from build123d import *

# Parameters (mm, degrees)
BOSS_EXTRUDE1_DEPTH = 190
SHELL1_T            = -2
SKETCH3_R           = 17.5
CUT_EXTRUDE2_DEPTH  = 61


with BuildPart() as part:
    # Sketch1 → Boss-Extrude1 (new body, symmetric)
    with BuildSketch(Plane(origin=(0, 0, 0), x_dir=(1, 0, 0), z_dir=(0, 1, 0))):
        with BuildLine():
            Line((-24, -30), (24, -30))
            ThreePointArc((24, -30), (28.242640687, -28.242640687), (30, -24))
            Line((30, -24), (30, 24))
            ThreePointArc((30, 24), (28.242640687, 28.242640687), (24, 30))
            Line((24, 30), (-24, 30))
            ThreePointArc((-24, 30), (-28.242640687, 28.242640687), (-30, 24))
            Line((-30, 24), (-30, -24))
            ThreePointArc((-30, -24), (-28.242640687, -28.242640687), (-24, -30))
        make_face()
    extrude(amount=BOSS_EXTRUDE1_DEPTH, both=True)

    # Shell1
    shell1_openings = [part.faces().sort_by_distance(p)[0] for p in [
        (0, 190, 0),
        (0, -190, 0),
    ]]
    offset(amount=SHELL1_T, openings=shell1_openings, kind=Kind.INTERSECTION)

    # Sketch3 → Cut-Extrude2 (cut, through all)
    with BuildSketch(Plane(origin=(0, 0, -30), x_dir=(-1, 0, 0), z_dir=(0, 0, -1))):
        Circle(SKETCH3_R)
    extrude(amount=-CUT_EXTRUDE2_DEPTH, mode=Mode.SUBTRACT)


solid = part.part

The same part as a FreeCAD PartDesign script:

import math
import FreeCAD as App
import Part
import Sketcher
from FreeCAD import Vector
Q = App.Units.Quantity


def faces_at(feature, points):
    """Names of the faces that lie closest to the given points."""
    faces = feature.Shape.Faces
    near = lambda p: min(range(len(faces)), key=lambda i: faces[i].distToShape(Part.Vertex(*p))[0])
    return sorted({f"Face{near(p) + 1}" for p in points})

doc = App.newDocument("Part")
body = doc.addObject("PartDesign::Body", "Body")

# Sketch on XZ plane
sketch1 = doc.addObject("Sketcher::SketchObject", "Sketch")
body.addObject(sketch1)
sketch1.AttachmentSupport = (doc.XZ_Plane, [""])
sketch1.MapMode = "FlatFace"
sketch1.addGeometry(Part.LineSegment(Vector(-24, 30, 0), Vector(24, 30, 0)), False)
sketch1.addGeometry(Part.ArcOfCircle(Part.Circle(Vector(24, 24, 0), Vector(0, 0, 1), 6), math.radians(0), math.radians(90)), False)
sketch1.addGeometry(Part.LineSegment(Vector(30, 24, 0), Vector(30, -24, 0)), False)
sketch1.addGeometry(Part.ArcOfCircle(Part.Circle(Vector(24, -24, 0), Vector(0, 0, 1), 6), math.radians(-90), math.radians(0)), False)
sketch1.addGeometry(Part.LineSegment(Vector(24, -30, 0), Vector(-24, -30, 0)), False)
sketch1.addGeometry(Part.ArcOfCircle(Part.Circle(Vector(-24, -24, 0), Vector(0, 0, 1), 6), math.radians(180), math.radians(270)), False)
sketch1.addGeometry(Part.LineSegment(Vector(-30, -24, 0), Vector(-30, 24, 0)), False)
sketch1.addGeometry(Part.ArcOfCircle(Part.Circle(Vector(-24, 24, 0), Vector(0, 0, 1), 6), math.radians(90), math.radians(180)), False)
sketch1.addConstraint(Sketcher.Constraint("Tangent", 0, 2, 1, 2))
sketch1.addConstraint(Sketcher.Constraint("Tangent", 1, 1, 2, 1))
sketch1.addConstraint(Sketcher.Constraint("Tangent", 2, 2, 3, 2))
sketch1.addConstraint(Sketcher.Constraint("Tangent", 3, 1, 4, 1))
sketch1.addConstraint(Sketcher.Constraint("Tangent", 4, 2, 5, 2))
sketch1.addConstraint(Sketcher.Constraint("Tangent", 5, 1, 6, 1))
sketch1.addConstraint(Sketcher.Constraint("Tangent", 6, 2, 7, 2))
sketch1.addConstraint(Sketcher.Constraint("Tangent", 7, 1, 0, 1))
sketch1.addConstraint(Sketcher.Constraint("Horizontal", 0))
sketch1.addConstraint(Sketcher.Constraint("Vertical", 2))
sketch1.addConstraint(Sketcher.Constraint("Horizontal", 4))
sketch1.addConstraint(Sketcher.Constraint("Vertical", 6))
sketch1.addConstraint(Sketcher.Constraint("Equal", 1, 3))
sketch1.addConstraint(Sketcher.Constraint("Equal", 3, 5))
sketch1.addConstraint(Sketcher.Constraint("Equal", 5, 7))
sketch1.addConstraint(Sketcher.Constraint("Symmetric", 1, 3, 5, 3, -1, 1))
sketch1.addConstraint(Sketcher.Constraint("Equal", 4, 2))
sketch1.addConstraint(Sketcher.Constraint("Radius", 1, Q("6 mm")))
sketch1.addConstraint(Sketcher.Constraint("DistanceX", 0, 1, 0, 2, Q("48 mm")))
pad1 = doc.addObject("PartDesign::Pad", "Pad")
body.addObject(pad1)
pad1.Profile = sketch1
pad1.Length = 380
pad1.Midplane = True
doc.recompute()

thickness = doc.addObject("PartDesign::Thickness", "Thickness")
body.addObject(thickness)
thickness.Base = (pad1, faces_at(pad1, [(0, 190, 0), (0, -190, 0)]))
thickness.Value = 2
thickness.Reversed = True
thickness.Join = "Intersection"

# Sketch on XY plane
sketch2 = doc.addObject("Sketcher::SketchObject", "Sketch001")
body.addObject(sketch2)
sketch2.AttachmentSupport = (doc.XY_Plane, [""])
sketch2.MapMode = "FlatFace"
sketch2.AttachmentOffset = App.Placement(Vector(0, 0, -30), App.Rotation())
sketch2.addGeometry(Part.Circle(Vector(0, 0, 0), Vector(0, 0, 1), 17.5), False)
sketch2.addConstraint(Sketcher.Constraint("Coincident", 0, 3, -1, 1))
sketch2.addConstraint(Sketcher.Constraint("Diameter", 0, Q("35 mm")))
pocket1 = doc.addObject("PartDesign::Pocket", "Pocket")
body.addObject(pocket1)
pocket1.Profile = sketch2
pocket1.Type = "ThroughAll"
pocket1.Reversed = True

doc.recompute()
